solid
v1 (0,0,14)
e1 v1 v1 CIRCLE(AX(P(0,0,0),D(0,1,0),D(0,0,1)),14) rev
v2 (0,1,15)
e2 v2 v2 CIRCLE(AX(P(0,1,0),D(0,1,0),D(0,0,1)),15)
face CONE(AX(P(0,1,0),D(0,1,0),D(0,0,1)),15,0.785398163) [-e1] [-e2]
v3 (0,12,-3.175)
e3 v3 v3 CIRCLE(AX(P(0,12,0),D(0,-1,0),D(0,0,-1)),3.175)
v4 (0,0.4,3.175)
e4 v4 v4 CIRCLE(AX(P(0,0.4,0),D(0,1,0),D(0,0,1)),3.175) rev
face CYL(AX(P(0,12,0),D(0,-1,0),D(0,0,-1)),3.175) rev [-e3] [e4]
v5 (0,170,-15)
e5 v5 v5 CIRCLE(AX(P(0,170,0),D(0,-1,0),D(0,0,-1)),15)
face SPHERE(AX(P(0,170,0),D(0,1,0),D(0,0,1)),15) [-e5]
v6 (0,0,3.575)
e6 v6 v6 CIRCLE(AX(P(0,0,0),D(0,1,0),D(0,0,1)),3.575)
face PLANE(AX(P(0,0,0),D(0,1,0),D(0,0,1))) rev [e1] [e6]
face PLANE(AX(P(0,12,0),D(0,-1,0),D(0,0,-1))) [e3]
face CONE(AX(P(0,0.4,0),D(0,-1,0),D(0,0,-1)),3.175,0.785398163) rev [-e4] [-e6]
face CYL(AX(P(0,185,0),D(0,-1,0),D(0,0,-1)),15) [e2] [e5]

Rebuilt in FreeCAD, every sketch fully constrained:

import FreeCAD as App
import Part
import Sketcher


def edges_at(feature, points):
    """Names of the edges that pass closest to the given points."""
    edges = feature.Shape.Edges
    near = lambda p: min(range(len(edges)), key=lambda i: edges[i].distToShape(Part.Vertex(*p))[0])
    return sorted({f"Edge{near(p) + 1}" for p in points})

doc = App.newDocument("Part")
body = doc.addObject("PartDesign::Body", "Body")

# Sketch on XZ plane
sketch1 = body.newObject("Sketcher::SketchObject", "Sketch")
sketch1.AttachmentSupport = (doc.getObject("XZ_Plane"), [""])
sketch1.MapMode = "FlatFace"
sketch1.addGeometry(Part.Circle(App.Vector(0, 0, 0), App.Vector(0, 0, 1), 15), False)
sketch1.addConstraint(Sketcher.Constraint("Coincident", 0, 3, -1, 1))
sketch1.addConstraint(Sketcher.Constraint("Diameter", 0, 30.0))
pad1 = body.newObject("PartDesign::Pad", "Pad")
pad1.Profile = sketch1
pad1.Length = 185
pad1.Reversed = True
doc.recompute()

fillet = body.newObject("PartDesign::Fillet", "Fillet")
fillet.Base = (pad1, edges_at(pad1, [(0, 185, -15)]))
fillet.Radius = 15

# Sketch on XZ plane
sketch2 = body.newObject("Sketcher::SketchObject", "Sketch001")
sketch2.AttachmentSupport = (doc.getObject("XZ_Plane"), [""])
sketch2.MapMode = "FlatFace"
sketch2.addGeometry(Part.Circle(App.Vector(0, 0, 0), App.Vector(0, 0, 1), 3.2), False)
sketch2.addConstraint(Sketcher.Constraint("Coincident", 0, 3, -1, 1))
sketch2.addConstraint(Sketcher.Constraint("Diameter", 0, 6.35))
pocket1 = body.newObject("PartDesign::Pocket", "Pocket")
pocket1.Profile = sketch2
pocket1.Length = 12
doc.recompute()

chamfer = body.newObject("PartDesign::Chamfer", "Chamfer")
chamfer.Base = (pocket1, edges_at(pocket1, [(0, 0, 3.175)]))
chamfer.Size = 0.4
doc.recompute()

chamfer2 = body.newObject("PartDesign::Chamfer", "Chamfer001")
chamfer2.Base = (chamfer, edges_at(chamfer, [(0, 0, -15)]))
chamfer2.Size = 1

doc.recompute()
